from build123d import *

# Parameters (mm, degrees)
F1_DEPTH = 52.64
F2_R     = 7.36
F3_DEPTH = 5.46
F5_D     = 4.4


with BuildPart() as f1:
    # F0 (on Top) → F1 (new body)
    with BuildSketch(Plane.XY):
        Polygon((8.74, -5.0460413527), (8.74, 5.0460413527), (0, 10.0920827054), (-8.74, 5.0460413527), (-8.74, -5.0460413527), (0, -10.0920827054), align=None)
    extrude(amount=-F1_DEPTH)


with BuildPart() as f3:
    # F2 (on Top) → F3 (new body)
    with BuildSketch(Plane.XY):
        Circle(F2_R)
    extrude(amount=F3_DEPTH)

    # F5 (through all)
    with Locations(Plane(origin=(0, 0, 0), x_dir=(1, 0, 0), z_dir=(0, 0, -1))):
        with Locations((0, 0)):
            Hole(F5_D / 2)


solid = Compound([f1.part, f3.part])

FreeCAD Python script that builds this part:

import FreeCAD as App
import Part
import Sketcher
from FreeCAD import Vector
Q = App.Units.Quantity

doc = App.newDocument("Part")
body = doc.addObject("PartDesign::Body", "Body")

sketch1 = body.newObject("Sketcher::SketchObject", "Sketch")
sketch1.AttachmentSupport = (doc.getObject("XY_Plane"), [""])
sketch1.MapMode = "FlatFace"
sketch1.addGeometry([
    Part.LineSegment(Vector(9, -5, 0), Vector(9, 5, 0)),
    Part.LineSegment(Vector(9, 5, 0), Vector(0, 10, 0)),
    Part.LineSegment(Vector(0, 10, 0), Vector(-9, 5, 0)),
    Part.LineSegment(Vector(-9, 5, 0), Vector(-9, -5, 0)),
    Part.LineSegment(Vector(-9, -5, 0), Vector(0, -10, 0)),
    Part.LineSegment(Vector(0, -10, 0), Vector(9, -5, 0)),
], False)
sketch1.addConstraint([
    Sketcher.Constraint("Coincident", 0, 2, 1, 1),
    Sketcher.Constraint("Coincident", 1, 2, 2, 1),
    Sketcher.Constraint("Coincident", 2, 2, 3, 1),
    Sketcher.Constraint("Coincident", 3, 2, 4, 1),
    Sketcher.Constraint("Coincident", 4, 2, 5, 1),
    Sketcher.Constraint("Coincident", 5, 2, 0, 1),
    Sketcher.Constraint("Vertical", 0),
    Sketcher.Constraint("Vertical", 3),
    Sketcher.Constraint("Symmetric", 0, 2, 3, 2, -1, 1),
    Sketcher.Constraint("Symmetric", 1, 2, 4, 2, -1, 1),
    Sketcher.Constraint("PointOnObject", 1, 2, -2),
    Sketcher.Constraint("Parallel", 2, 5),
    Sketcher.Constraint("Horizontal", 0, 2, 2, 2),
    Sketcher.Constraint("Angle", 1, Q("150 deg")),
    Sketcher.Constraint("DistanceX", -1, 1, 0, 2, 8.74),
    Sketcher.Constraint("DistanceY", 0, 1, 0, 2, 10.092083),
])
pad1 = body.newObject("PartDesign::Pad", "Pad")
pad1.Profile = sketch1
pad1.Length = 52.64
pad1.Reversed = True
body2 = doc.addObject("PartDesign::Body", "Body001")

sketch2 = body2.newObject("Sketcher::SketchObject", "Sketch001")
sketch2.AttachmentSupport = (doc.getObject("XY_Plane001"), [""])
sketch2.MapMode = "FlatFace"
sketch2.addGeometry(Part.Circle(Vector(0, 0, 0), Vector(0, 0, 1), 7), False)
sketch2.addConstraint([
    Sketcher.Constraint("Coincident", 0, 3, -1, 1),
    Sketcher.Constraint("Diameter", 0, 14.72),
])
pad2 = body2.newObject("PartDesign::Pad", "Pad001")
pad2.Profile = sketch2
pad2.Length = 5.46

sketch3 = body2.newObject("Sketcher::SketchObject", "Sketch002")
sketch3.AttachmentSupport = (doc.getObject("XY_Plane001"), [""])
sketch3.MapMode = "FlatFace"
sketch3.addGeometry(Part.Circle(Vector(0, 0, 0), Vector(0, 0, 1), 2.2), False)
sketch3.addConstraint([
    Sketcher.Constraint("Coincident", 0, 3, -1, 1),
    Sketcher.Constraint("Diameter", 0, 4.4),
])
doc.recompute()
hole = body2.newObject("PartDesign::Hole", "Hole")
hole.Profile = sketch3
hole.ThreadType = "None"
hole.Diameter = 4.4
hole.DepthType = "ThroughAll"
hole.Reversed = True

doc.recompute()
